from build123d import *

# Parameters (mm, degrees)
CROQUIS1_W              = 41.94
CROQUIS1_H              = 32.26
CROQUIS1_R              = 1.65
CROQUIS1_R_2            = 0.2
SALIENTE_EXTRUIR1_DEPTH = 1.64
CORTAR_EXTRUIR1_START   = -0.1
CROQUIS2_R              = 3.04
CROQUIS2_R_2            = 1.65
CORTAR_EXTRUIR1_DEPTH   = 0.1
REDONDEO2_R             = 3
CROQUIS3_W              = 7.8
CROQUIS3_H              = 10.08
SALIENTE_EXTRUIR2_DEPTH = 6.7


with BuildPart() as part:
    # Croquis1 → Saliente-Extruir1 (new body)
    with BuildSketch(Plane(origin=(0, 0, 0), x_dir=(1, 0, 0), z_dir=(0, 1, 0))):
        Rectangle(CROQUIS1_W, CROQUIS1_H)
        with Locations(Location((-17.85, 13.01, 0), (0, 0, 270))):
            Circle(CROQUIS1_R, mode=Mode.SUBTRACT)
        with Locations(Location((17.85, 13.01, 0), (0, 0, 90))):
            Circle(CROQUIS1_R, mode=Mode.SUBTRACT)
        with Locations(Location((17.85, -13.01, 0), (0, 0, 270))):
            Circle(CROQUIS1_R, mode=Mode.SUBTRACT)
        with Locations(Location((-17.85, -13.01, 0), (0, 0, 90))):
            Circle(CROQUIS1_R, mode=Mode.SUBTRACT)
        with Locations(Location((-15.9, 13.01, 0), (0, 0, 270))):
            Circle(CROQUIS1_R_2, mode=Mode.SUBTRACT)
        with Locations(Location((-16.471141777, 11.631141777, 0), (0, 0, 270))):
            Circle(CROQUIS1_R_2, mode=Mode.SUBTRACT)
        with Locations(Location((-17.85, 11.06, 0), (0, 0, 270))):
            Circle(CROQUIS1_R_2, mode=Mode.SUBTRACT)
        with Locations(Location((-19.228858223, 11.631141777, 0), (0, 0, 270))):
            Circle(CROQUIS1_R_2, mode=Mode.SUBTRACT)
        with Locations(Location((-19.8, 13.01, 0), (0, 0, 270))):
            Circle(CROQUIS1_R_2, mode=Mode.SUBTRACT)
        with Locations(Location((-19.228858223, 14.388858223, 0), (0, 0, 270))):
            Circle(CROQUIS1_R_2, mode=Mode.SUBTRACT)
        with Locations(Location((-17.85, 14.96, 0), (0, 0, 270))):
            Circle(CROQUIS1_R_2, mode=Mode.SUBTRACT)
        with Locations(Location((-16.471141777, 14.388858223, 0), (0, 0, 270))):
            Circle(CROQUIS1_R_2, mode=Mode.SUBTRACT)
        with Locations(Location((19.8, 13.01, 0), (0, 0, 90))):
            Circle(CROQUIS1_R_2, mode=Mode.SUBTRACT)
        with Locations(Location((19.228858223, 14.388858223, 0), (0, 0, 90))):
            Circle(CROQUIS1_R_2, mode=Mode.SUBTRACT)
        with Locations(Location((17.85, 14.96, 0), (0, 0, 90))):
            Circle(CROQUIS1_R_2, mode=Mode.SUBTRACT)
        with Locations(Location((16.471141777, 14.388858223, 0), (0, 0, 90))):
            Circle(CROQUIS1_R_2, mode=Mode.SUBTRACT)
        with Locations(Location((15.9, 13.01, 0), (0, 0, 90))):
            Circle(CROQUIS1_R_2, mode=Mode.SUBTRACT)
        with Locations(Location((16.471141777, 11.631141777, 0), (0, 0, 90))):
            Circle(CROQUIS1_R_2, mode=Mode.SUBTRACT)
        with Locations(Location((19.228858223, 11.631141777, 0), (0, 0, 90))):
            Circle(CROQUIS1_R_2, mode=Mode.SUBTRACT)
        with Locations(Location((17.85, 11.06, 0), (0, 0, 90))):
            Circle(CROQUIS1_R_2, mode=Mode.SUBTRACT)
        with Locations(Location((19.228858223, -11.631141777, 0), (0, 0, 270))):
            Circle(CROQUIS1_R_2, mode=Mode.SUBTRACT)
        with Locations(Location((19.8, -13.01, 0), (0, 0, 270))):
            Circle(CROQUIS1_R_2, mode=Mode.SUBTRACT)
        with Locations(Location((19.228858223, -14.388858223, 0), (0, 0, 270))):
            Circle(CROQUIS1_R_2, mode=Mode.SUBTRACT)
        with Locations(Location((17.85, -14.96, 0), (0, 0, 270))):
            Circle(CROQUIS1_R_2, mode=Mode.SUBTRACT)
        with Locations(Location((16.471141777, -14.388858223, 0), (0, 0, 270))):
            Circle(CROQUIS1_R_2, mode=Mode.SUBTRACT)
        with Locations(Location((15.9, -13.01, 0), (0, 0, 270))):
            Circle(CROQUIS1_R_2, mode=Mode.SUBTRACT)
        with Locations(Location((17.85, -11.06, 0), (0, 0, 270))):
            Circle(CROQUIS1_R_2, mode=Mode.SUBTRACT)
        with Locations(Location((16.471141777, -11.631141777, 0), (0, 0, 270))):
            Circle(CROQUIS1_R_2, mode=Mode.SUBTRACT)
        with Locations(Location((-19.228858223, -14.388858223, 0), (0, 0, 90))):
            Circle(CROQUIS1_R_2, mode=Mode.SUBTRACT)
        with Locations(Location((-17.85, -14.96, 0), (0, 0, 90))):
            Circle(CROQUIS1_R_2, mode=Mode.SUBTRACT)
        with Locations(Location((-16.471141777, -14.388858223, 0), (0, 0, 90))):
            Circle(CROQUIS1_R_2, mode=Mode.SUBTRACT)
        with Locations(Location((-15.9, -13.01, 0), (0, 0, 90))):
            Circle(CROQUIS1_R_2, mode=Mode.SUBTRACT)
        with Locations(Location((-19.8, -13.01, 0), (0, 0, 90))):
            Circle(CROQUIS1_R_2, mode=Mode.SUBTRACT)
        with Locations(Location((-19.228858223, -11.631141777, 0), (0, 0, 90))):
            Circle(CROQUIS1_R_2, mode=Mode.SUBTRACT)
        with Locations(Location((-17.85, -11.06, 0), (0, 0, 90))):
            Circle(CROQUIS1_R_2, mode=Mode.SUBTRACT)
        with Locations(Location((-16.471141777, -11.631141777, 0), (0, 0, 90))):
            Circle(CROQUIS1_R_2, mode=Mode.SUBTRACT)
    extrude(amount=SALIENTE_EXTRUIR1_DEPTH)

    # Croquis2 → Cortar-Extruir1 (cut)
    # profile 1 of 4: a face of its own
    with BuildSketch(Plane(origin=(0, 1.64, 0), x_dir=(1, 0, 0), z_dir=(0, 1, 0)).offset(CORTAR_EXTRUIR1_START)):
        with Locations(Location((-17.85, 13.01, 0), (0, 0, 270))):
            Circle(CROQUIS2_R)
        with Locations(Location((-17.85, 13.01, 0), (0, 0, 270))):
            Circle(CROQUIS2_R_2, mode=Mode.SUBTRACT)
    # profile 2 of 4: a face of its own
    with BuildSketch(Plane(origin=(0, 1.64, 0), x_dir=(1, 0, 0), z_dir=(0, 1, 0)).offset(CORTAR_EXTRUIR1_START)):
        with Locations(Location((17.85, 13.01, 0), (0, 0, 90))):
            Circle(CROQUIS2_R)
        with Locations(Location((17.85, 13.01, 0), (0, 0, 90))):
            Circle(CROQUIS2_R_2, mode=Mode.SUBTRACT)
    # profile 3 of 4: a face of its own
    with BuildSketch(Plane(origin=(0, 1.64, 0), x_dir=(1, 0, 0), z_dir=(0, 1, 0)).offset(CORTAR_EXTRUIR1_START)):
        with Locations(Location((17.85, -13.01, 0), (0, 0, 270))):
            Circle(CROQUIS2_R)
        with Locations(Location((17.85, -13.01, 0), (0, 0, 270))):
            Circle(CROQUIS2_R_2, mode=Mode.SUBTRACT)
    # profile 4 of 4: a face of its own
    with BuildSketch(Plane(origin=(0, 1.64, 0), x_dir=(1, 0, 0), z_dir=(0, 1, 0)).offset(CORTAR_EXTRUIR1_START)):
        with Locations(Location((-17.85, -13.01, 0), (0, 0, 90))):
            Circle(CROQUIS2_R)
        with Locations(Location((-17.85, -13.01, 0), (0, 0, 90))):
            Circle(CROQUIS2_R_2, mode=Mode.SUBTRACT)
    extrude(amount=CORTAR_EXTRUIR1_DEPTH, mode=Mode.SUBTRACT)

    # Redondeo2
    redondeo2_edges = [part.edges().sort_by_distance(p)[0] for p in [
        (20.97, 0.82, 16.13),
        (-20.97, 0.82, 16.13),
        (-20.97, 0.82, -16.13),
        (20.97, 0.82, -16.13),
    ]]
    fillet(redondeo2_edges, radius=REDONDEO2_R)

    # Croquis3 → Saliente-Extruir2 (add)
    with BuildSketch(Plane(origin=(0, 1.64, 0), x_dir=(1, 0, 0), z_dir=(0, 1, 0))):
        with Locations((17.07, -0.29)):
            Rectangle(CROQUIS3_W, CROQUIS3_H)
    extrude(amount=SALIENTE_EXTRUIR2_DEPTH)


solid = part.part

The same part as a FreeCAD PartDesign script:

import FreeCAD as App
import Part
import Sketcher
from FreeCAD import Vector


def edges_at(feature, points):
    """Names of the edges that pass closest to the given points."""
    edges = feature.Shape.Edges
    near = lambda p: min(range(len(edges)), key=lambda i: edges[i].distToShape(Part.Vertex(*p))[0])
    return sorted({f"Edge{near(p) + 1}" for p in points})


def add_polygon(sketch, points):
    """Adds a closed chain of lines whose ends are joined by coincident constraints."""
    first, n = sketch.GeometryCount, len(points)
    for a, b in zip(points, points[1:] + points[:1]):
        sketch.addGeometry(Part.LineSegment(App.Vector(*a, 0), App.Vector(*b, 0)), False)
    for i in range(n):
        sketch.addConstraint(Sketcher.Constraint("Coincident", first + i, 2, first + (i + 1) % n, 1))

doc = App.newDocument("Part")
body = doc.addObject("PartDesign::Body", "Body")

sketch1 = body.newObject("Sketcher::SketchObject", "Sketch")
sketch1.AttachmentSupport = (doc.getObject("XZ_Plane"), [""])
sketch1.MapMode = "FlatFace"
add_polygon(sketch1, [(-20.97, -16.13), (-20.97, 16.13), (20.97, 16.13), (20.97, -16.13)])
sketch1.addGeometry(Part.Circle(Vector(-19.23, 14.39, 0), Vector(0, 0, 1), 0.2), False)
sketch1.addGeometry(Part.Circle(Vector(-17.85, 14.96, 0), Vector(0, 0, 1), 0.2), False)
sketch1.addGeometry(Part.Circle(Vector(-16.47, 14.39, 0), Vector(0, 0, 1), 0.2), False)
sketch1.addGeometry(Part.Circle(Vector(-19.8, 13.01, 0), Vector(0, 0, 1), 0.2), False)
sketch1.addGeometry(Part.Circle(Vector(-17.85, 13.01, 0), Vector(0, 0, 1), 1.65), False)
sketch1.addGeometry(Part.Circle(Vector(-19.23, 11.63, 0), Vector(0, 0, 1), 0.2), False)
sketch1.addGeometry(Part.Circle(Vector(-15.9, 13.01, 0), Vector(0, 0, 1), 0.2), False)
sketch1.addGeometry(Part.Circle(Vector(-16.47, 11.63, 0), Vector(0, 0, 1), 0.2), False)
sketch1.addGeometry(Part.Circle(Vector(-17.85, 11.06, 0), Vector(0, 0, 1), 0.2), False)
sketch1.addGeometry(Part.Circle(Vector(16.47, 14.39, 0), Vector(0, 0, 1), 0.2), False)
sketch1.addGeometry(Part.Circle(Vector(17.85, 14.96, 0), Vector(0, 0, 1), 0.2), False)
sketch1.addGeometry(Part.Circle(Vector(19.23, 14.39, 0), Vector(0, 0, 1), 0.2), False)
sketch1.addGeometry(Part.Circle(Vector(15.9, 13.01, 0), Vector(0, 0, 1), 0.2), False)
sketch1.addGeometry(Part.Circle(Vector(16.47, 11.63, 0), Vector(0, 0, 1), 0.2), False)
sketch1.addGeometry(Part.Circle(Vector(17.85, 13.01, 0), Vector(0, 0, 1), 1.65), False)
sketch1.addGeometry(Part.Circle(Vector(19.8, 13.01, 0), Vector(0, 0, 1), 0.2), False)
sketch1.addGeometry(Part.Circle(Vector(19.23, 11.63, 0), Vector(0, 0, 1), 0.2), False)
sketch1.addGeometry(Part.Circle(Vector(17.85, 11.06, 0), Vector(0, 0, 1), 0.2), False)
sketch1.addGeometry(Part.Circle(Vector(-17.85, -11.06, 0), Vector(0, 0, 1), 0.2), False)
sketch1.addGeometry(Part.Circle(Vector(-19.23, -11.63, 0), Vector(0, 0, 1), 0.2), False)
sketch1.addGeometry(Part.Circle(Vector(-19.8, -13.01, 0), Vector(0, 0, 1), 0.2), False)
sketch1.addGeometry(Part.Circle(Vector(-17.85, -13.01, 0), Vector(0, 0, 1), 1.65), False)
sketch1.addGeometry(Part.Circle(Vector(-16.47, -11.63, 0), Vector(0, 0, 1), 0.2), False)
sketch1.addGeometry(Part.Circle(Vector(-15.9, -13.01, 0), Vector(0, 0, 1), 0.2), False)
sketch1.addGeometry(Part.Circle(Vector(-19.23, -14.39, 0), Vector(0, 0, 1), 0.2), False)
sketch1.addGeometry(Part.Circle(Vector(-17.85, -14.96, 0), Vector(0, 0, 1), 0.2), False)
sketch1.addGeometry(Part.Circle(Vector(-16.47, -14.39, 0), Vector(0, 0, 1), 0.2), False)
sketch1.addGeometry(Part.Circle(Vector(17.85, -11.06, 0), Vector(0, 0, 1), 0.2), False)
sketch1.addGeometry(Part.Circle(Vector(16.47, -11.63, 0), Vector(0, 0, 1), 0.2), False)
sketch1.addGeometry(Part.Circle(Vector(15.9, -13.01, 0), Vector(0, 0, 1), 0.2), False)
sketch1.addGeometry(Part.Circle(Vector(19.23, -11.63, 0), Vector(0, 0, 1), 0.2), False)
sketch1.addGeometry(Part.Circle(Vector(17.85, -13.01, 0), Vector(0, 0, 1), 1.65), False)
sketch1.addGeometry(Part.Circle(Vector(19.8, -13.01, 0), Vector(0, 0, 1), 0.2), False)
sketch1.addGeometry(Part.Circle(Vector(16.47, -14.39, 0), Vector(0, 0, 1), 0.2), False)
sketch1.addGeometry(Part.Circle(Vector(17.85, -14.96, 0), Vector(0, 0, 1), 0.2), False)
sketch1.addGeometry(Part.Circle(Vector(19.23, -14.39, 0), Vector(0, 0, 1), 0.2), False)
sketch1.addConstraint([
    Sketcher.Constraint("Vertical", 0),
    Sketcher.Constraint("Horizontal", 1),
    Sketcher.Constraint("Vertical", 2),
    Sketcher.Constraint("Horizontal", 3),
    Sketcher.Constraint("Equal", 4, 5),
    Sketcher.Constraint("Equal", 5, 6),
    Sketcher.Constraint("Equal", 6, 7),
    Sketcher.Constraint("Equal", 7, 9),
    Sketcher.Constraint("Equal", 9, 10),
    Sketcher.Constraint("Equal", 10, 11),
    Sketcher.Constraint("Equal", 11, 12),
    Sketcher.Constraint("Equal", 12, 13),
    Sketcher.Constraint("Equal", 13, 14),
    Sketcher.Constraint("Equal", 14, 15),
    Sketcher.Constraint("Equal", 15, 16),
    Sketcher.Constraint("Equal", 16, 17),
    Sketcher.Constraint("Equal", 8, 18),
    Sketcher.Constraint("Equal", 17, 19),
    Sketcher.Constraint("Equal", 19, 20),
    Sketcher.Constraint("Equal", 20, 21),
    Sketcher.Constraint("Equal", 21, 22),
    Sketcher.Constraint("Equal", 22, 23),
    Sketcher.Constraint("Equal", 23, 24),
    Sketcher.Constraint("Equal", 18, 25),
    Sketcher.Constraint("Equal", 24, 26),
    Sketcher.Constraint("Equal", 26, 27),
    Sketcher.Constraint("Equal", 27, 28),
    Sketcher.Constraint("Equal", 28, 29),
    Sketcher.Constraint("Equal", 29, 30),
    Sketcher.Constraint("Equal", 30, 31),
    Sketcher.Constraint("Equal", 31, 32),
    Sketcher.Constraint("Equal", 32, 33),
    Sketcher.Constraint("Equal", 33, 34),
    Sketcher.Constraint("Equal", 25, 35),
    Sketcher.Constraint("Equal", 34, 36),
    Sketcher.Constraint("Equal", 36, 37),
    Sketcher.Constraint("Equal", 37, 38),
    Sketcher.Constraint("Equal", 38, 39),
    Sketcher.Constraint("Symmetric", 21, 3, 22, 3, -1, 1),
    Sketcher.Constraint("Symmetric", 20, 3, 23, 3, -1, 1),
    Sketcher.Constraint("Symmetric", 19, 3, 24, 3, -1, 1),
    Sketcher.Constraint("Symmetric", 18, 3, 25, 3, -1, 1),
    Sketcher.Constraint("Symmetric", 17, 3, 26, 3, -1, 1),
    Sketcher.Constraint("Symmetric", 16, 3, 27, 3, -1, 1),
    Sketcher.Constraint("Symmetric", 15, 3, 28, 3, -1, 1),
    Sketcher.Constraint("Symmetric", 14, 3, 29, 3, -1, 1),
    Sketcher.Constraint("Symmetric", 13, 3, 30, 3, -1, 1),
    Sketcher.Constraint("Symmetric", 12, 3, 31, 3, -1, 1),
    Sketcher.Constraint("Symmetric", 11, 3, 32, 3, -1, 1),
    Sketcher.Constraint("Symmetric", 10, 3, 33, 3, -1, 1),
    Sketcher.Constraint("Symmetric", 9, 3, 34, 3, -1, 1),
    Sketcher.Constraint("Symmetric", 8, 3, 35, 3, -1, 1),
    Sketcher.Constraint("Symmetric", 7, 3, 36, 3, -1, 1),
    Sketcher.Constraint("Symmetric", 6, 3, 37, 3, -1, 1),
    Sketcher.Constraint("Symmetric", 5, 3, 38, 3, -1, 1),
    Sketcher.Constraint("Symmetric", 4, 3, 39, 3, -1, 1),
    Sketcher.Constraint("Symmetric", 0, 2, 2, 2, -1, 1),
    Sketcher.Constraint("Symmetric", 6, 3, 13, 3, -2),
    Sketcher.Constraint("Symmetric", 5, 3, 14, 3, -2),
    Sketcher.Constraint("Symmetric", 4, 3, 15, 3, -2),
    Sketcher.Constraint("Symmetric", 10, 3, 16, 3, -2),
    Sketcher.Constraint("Symmetric", 11, 3, 17, 3, -2),
    Sketcher.Constraint("Symmetric", 8, 3, 18, 3, -2),
    Sketcher.Constraint("Symmetric", 7, 3, 19, 3, -2),
    Sketcher.Constraint("Symmetric", 9, 3, 20, 3, -2),
    Sketcher.Constraint("Symmetric", 12, 3, 21, 3, -2),
    Sketcher.Constraint("Horizontal", 4, 3, 6, 3),
    Sketcher.Constraint("Horizontal", 7, 3, 8, 3),
    Sketcher.Constraint("Horizontal", 8, 3, 10, 3),
    Sketcher.Constraint("Horizontal", 9, 3, 11, 3),
    Sketcher.Constraint("Vertical", 5, 3, 8, 3),
    Sketcher.Constraint("Vertical", 4, 3, 9, 3),
    Sketcher.Constraint("Vertical", 6, 3, 11, 3),
    Sketcher.Constraint("Vertical", 8, 3, 12, 3),
    Sketcher.Constraint("Diameter", 4, 0.4),
    Sketcher.Constraint("Diameter", 8, 3.3),
    Sketcher.Constraint("DistanceX", 1, 1, 1, 2, 41.94),
    Sketcher.Constraint("DistanceY", 0, 1, 0, 2, 32.26),
    Sketcher.Constraint("DistanceX", 7, 3, -1, 1, 19.8),
    Sketcher.Constraint("DistanceX", 10, 3, -1, 1, 15.9),
    Sketcher.Constraint("DistanceX", 5, 3, 14, 3, 35.7),
    Sketcher.Constraint("DistanceX", 6, 3, 15, 3, 35.7),
    Sketcher.Constraint("DistanceY", -1, 1, 5, 3, 14.96),
    Sketcher.Constraint("DistanceY", -1, 1, 7, 3, 13.01),
    Sketcher.Constraint("DistanceY", -1, 1, 12, 3, 11.06),
    Sketcher.Constraint("DistanceX", 4, 3, -1, 1, 19.228858),
    Sketcher.Constraint("DistanceY", -1, 1, 4, 3, 14.388858),
    Sketcher.Constraint("DistanceY", -1, 1, 9, 3, 11.631142),
])
pad1 = body.newObject("PartDesign::Pad", "Pad")
pad1.Profile = sketch1
pad1.Length = 1.64
pad1.Reversed = True

sketch2 = body.newObject("Sketcher::SketchObject", "Sketch001")
sketch2.AttachmentSupport = (doc.getObject("XZ_Plane"), [""])
sketch2.MapMode = "FlatFace"
sketch2.AttachmentOffset = App.Placement(Vector(0, 0, -1.54), App.Rotation())
sketch2.addGeometry([
    Part.Circle(Vector(-17.9, -13, 0), Vector(0, 0, 1), 3),
    Part.Circle(Vector(-17.9, -13, 0), Vector(0, 0, 1), 1.6),
    Part.Circle(Vector(17.9, -13, 0), Vector(0, 0, 1), 3),
    Part.Circle(Vector(17.9, -13, 0), Vector(0, 0, 1), 1.6),
    Part.Circle(Vector(17.9, 13, 0), Vector(0, 0, 1), 3),
    Part.Circle(Vector(17.9, 13, 0), Vector(0, 0, 1), 1.6),
    Part.Circle(Vector(-17.9, 13, 0), Vector(0, 0, 1), 3),
    Part.Circle(Vector(-17.9, 13, 0), Vector(0, 0, 1), 1.6),
], False)
sketch2.addConstraint([
    Sketcher.Constraint("Coincident", 1, 3, 0, 3),
    Sketcher.Constraint("Coincident", 3, 3, 2, 3),
    Sketcher.Constraint("Coincident", 5, 3, 4, 3),
    Sketcher.Constraint("Coincident", 7, 3, 6, 3),
    Sketcher.Constraint("Equal", 0, 2),
    Sketcher.Constraint("Equal", 1, 3),
    Sketcher.Constraint("Equal", 2, 4),
    Sketcher.Constraint("Equal", 3, 5),
    Sketcher.Constraint("Equal", 4, 6),
    Sketcher.Constraint("Equal", 5, 7),
    Sketcher.Constraint("Symmetric", 0, 3, 4, 3, -1, 1),
    Sketcher.Constraint("Symmetric", 2, 3, 6, 3, -1, 1),
    Sketcher.Constraint("Symmetric", 0, 3, 2, 3, -2),
    Sketcher.Constraint("Diameter", 1, 3.3),
    Sketcher.Constraint("Diameter", 0, 6.08),
    Sketcher.Constraint("DistanceX", 0, 3, 2, 3, 35.7),
    Sketcher.Constraint("DistanceY", 0, 3, -1, 1, 13.01),
])
pocket1 = body.newObject("PartDesign::Pocket", "Pocket")
pocket1.Profile = sketch2
pocket1.Length = 0.1
doc.recompute()

fillet = body.newObject("PartDesign::Fillet", "Fillet")
fillet.Base = (pocket1, edges_at(pocket1, [
    (20.97, 0.82, 16.13),
    (-20.97, 0.82, 16.13),
    (-20.97, 0.82, -16.13),
    (20.97, 0.82, -16.13),
]))
fillet.Radius = 3

sketch3 = body.newObject("Sketcher::SketchObject", "Sketch002")
sketch3.AttachmentSupport = (doc.getObject("XZ_Plane"), [""])
sketch3.MapMode = "FlatFace"
sketch3.AttachmentOffset = App.Placement(Vector(0, 0, -1.64), App.Rotation())
add_polygon(sketch3, [(13, -5), (13, 5), (21, 5), (21, -5)])
sketch3.addConstraint([
    Sketcher.Constraint("Vertical", 0),
    Sketcher.Constraint("Horizontal", 1),
    Sketcher.Constraint("Vertical", 2),
    Sketcher.Constraint("Horizontal", 3),
    Sketcher.Constraint("DistanceX", 1, 1, 1, 2, 7.8),
    Sketcher.Constraint("DistanceY", 0, 1, 0, 2, 10.08),
    Sketcher.Constraint("DistanceX", -1, 1, 0, 2, 13.17),
    Sketcher.Constraint("DistanceY", -1, 1, 0, 2, 5.33),
])
pad2 = body.newObject("PartDesign::Pad", "Pad001")
pad2.Profile = sketch3
pad2.Length = 6.7
pad2.Reversed = True

doc.recompute()
